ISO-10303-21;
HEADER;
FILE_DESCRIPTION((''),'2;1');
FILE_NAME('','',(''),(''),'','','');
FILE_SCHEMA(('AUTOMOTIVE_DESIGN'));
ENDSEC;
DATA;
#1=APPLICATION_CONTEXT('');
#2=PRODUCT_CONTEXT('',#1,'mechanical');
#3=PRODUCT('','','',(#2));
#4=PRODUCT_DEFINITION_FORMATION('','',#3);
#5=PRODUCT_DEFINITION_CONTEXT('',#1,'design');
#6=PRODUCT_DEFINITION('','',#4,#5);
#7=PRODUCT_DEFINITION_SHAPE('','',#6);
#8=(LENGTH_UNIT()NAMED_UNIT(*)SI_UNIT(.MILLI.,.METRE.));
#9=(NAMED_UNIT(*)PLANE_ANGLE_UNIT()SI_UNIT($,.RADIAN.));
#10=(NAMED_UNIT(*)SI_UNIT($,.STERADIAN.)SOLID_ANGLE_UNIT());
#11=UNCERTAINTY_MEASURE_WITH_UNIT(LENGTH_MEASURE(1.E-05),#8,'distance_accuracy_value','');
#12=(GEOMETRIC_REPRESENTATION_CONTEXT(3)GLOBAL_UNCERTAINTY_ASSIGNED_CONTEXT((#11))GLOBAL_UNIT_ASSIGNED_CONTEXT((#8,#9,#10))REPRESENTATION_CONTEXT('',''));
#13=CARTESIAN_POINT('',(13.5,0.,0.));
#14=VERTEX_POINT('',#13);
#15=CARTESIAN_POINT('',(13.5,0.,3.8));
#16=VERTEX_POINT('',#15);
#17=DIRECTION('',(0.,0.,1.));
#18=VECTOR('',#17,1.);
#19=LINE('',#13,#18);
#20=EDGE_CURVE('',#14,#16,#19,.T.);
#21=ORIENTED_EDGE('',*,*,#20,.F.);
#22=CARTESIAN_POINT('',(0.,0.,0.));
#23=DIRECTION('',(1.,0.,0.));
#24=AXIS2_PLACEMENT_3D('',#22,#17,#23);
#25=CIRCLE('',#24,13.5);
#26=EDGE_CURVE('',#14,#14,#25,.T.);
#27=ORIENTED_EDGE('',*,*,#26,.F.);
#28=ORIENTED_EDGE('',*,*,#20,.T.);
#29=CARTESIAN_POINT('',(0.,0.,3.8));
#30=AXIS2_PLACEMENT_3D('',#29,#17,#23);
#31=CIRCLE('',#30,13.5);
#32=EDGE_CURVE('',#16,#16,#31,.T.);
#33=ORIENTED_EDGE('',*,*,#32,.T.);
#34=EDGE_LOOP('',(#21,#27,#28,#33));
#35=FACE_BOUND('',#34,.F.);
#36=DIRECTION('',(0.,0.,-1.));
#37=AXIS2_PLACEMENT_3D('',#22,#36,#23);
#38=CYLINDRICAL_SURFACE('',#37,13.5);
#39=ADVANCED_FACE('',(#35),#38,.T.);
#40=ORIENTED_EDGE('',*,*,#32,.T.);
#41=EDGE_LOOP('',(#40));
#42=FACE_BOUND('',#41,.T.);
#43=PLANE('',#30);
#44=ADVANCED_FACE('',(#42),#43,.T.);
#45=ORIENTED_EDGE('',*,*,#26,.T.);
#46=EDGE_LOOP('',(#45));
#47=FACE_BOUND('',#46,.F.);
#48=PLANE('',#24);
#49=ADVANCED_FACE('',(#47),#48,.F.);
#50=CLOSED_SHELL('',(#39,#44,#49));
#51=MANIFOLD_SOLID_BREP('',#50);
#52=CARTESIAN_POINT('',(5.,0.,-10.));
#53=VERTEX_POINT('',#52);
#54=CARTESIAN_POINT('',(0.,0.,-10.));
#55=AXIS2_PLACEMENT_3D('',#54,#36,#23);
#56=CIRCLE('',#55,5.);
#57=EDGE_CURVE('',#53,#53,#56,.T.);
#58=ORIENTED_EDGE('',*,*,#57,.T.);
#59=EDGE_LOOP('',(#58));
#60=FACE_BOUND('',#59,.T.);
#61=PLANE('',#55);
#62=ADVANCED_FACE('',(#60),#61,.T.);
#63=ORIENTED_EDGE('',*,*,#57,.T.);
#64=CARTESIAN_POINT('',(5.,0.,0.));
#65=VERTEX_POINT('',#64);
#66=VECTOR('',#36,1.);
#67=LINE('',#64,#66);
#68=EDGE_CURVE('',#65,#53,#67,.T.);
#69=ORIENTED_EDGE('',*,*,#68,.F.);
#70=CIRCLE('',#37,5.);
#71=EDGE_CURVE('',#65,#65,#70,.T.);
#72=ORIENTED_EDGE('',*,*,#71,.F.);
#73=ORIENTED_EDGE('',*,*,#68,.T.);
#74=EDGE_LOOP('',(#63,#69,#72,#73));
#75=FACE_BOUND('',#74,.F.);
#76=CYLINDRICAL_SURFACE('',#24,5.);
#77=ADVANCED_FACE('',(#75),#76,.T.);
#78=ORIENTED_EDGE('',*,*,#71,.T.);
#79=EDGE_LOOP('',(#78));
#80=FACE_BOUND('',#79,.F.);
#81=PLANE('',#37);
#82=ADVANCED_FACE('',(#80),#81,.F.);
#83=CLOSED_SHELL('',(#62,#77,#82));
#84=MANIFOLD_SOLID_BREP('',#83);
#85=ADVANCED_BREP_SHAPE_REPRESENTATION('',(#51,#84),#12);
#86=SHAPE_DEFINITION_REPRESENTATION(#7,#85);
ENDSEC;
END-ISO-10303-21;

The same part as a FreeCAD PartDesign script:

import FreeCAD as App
import Part
import Sketcher
from FreeCAD import Vector
Q = App.Units.Quantity

doc = App.newDocument("Part")
body = doc.addObject("PartDesign::Body", "Body")

# Sketch on XY plane
sketch1 = doc.addObject("Sketcher::SketchObject", "Sketch")
body.addObject(sketch1)
sketch1.AttachmentSupport = (doc.XY_Plane, [""])
sketch1.MapMode = "FlatFace"
sketch1.addGeometry(Part.Circle(Vector(0, 0, 0), Vector(0, 0, 1), 14), False)
sketch1.addConstraint([
    Sketcher.Constraint("Coincident", 0, 3, -1, 1),
    Sketcher.Constraint("Diameter", 0, Q("27 mm")),
])
pad1 = doc.addObject("PartDesign::Pad", "Pad")
body.addObject(pad1)
pad1.Profile = sketch1
pad1.Length = 3.8
body2 = doc.addObject("PartDesign::Body", "Body001")

# Sketch on XY plane
sketch2 = doc.addObject("Sketcher::SketchObject", "Sketch001")
body2.addObject(sketch2)
sketch2.AttachmentSupport = (doc.getObject("XY_Plane001"), [""])
sketch2.MapMode = "FlatFace"
sketch2.addGeometry(Part.Circle(Vector(0, 0, 0), Vector(0, 0, 1), 5), False)
sketch2.addConstraint([
    Sketcher.Constraint("Coincident", 0, 3, -1, 1),
    Sketcher.Constraint("Diameter", 0, Q("10 mm")),
])
pad2 = doc.addObject("PartDesign::Pad", "Pad001")
body2.addObject(pad2)
pad2.Profile = sketch2
pad2.Length = 10
pad2.Reversed = True

doc.recompute()
